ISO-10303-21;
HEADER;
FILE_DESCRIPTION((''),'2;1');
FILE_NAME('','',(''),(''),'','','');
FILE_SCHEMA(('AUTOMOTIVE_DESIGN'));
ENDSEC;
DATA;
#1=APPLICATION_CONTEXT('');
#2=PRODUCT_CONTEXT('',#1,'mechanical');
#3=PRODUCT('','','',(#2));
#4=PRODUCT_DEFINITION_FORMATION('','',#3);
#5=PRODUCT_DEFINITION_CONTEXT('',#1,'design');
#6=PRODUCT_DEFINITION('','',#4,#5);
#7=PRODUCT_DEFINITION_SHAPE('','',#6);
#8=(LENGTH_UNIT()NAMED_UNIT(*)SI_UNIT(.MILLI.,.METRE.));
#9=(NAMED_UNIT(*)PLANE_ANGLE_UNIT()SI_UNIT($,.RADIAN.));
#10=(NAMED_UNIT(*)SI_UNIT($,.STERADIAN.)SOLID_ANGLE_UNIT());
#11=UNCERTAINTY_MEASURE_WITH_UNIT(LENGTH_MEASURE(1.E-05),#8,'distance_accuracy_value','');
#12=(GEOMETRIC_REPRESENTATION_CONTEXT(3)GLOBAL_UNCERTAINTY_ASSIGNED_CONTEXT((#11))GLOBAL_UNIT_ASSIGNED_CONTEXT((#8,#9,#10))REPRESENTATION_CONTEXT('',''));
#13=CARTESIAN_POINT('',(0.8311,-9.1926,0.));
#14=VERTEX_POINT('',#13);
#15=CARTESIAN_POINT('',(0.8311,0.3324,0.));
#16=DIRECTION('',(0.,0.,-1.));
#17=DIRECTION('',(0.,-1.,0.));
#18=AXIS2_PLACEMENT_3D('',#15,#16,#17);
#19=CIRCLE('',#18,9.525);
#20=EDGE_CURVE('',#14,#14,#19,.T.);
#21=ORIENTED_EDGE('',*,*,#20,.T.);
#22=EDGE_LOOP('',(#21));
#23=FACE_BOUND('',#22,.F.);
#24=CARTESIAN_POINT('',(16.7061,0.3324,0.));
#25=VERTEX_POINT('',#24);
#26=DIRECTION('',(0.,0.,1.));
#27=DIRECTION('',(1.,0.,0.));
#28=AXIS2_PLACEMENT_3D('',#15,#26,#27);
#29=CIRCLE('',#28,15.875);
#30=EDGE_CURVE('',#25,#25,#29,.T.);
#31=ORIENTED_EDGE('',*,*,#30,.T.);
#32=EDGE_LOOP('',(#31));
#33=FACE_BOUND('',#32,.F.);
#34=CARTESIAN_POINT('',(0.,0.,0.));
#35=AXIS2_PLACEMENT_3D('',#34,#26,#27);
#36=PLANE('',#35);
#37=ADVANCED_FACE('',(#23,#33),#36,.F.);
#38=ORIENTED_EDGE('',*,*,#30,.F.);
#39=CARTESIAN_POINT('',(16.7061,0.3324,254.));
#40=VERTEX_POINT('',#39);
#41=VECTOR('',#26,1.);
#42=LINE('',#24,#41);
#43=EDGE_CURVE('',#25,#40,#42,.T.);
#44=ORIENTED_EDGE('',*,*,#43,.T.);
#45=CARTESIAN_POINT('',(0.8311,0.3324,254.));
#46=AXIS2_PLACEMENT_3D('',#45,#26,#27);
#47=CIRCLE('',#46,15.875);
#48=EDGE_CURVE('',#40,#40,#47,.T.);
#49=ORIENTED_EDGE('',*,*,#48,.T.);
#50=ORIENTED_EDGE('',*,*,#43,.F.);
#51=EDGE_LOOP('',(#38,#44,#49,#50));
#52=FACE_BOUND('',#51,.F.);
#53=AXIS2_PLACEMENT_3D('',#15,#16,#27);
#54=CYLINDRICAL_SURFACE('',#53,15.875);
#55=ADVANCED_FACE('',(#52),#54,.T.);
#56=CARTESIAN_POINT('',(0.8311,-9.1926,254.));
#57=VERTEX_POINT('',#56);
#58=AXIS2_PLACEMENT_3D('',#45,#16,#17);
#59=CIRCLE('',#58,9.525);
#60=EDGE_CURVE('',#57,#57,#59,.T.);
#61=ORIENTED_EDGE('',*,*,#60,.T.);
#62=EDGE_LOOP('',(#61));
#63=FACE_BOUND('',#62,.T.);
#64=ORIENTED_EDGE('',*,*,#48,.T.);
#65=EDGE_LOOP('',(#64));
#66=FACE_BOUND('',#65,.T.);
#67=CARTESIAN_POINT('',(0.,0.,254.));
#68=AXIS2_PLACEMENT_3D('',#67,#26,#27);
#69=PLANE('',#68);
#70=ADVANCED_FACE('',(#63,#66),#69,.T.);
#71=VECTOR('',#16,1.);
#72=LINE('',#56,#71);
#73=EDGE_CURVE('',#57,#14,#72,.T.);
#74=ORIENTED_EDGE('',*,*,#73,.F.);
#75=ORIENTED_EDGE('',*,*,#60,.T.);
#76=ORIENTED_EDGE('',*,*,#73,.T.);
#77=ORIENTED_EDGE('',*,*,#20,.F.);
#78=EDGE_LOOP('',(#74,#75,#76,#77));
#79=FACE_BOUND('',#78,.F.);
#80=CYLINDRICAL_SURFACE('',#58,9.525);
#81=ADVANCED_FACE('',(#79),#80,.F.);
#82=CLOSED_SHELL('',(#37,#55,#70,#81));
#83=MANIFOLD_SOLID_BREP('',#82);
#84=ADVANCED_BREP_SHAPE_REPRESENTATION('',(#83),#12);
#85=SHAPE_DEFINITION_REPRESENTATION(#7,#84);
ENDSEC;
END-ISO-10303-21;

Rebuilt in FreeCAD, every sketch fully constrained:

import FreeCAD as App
import Part
import Sketcher
Q = App.Units.Quantity

doc = App.newDocument("Part")
body = doc.addObject("PartDesign::Body", "Body")

sketch1 = doc.addObject("Sketcher::SketchObject", "Sketch")
body.addObject(sketch1)
sketch1.AttachmentSupport = (doc.XY_Plane, [""])
sketch1.MapMode = "FlatFace"
sketch1.addGeometry(Part.Circle(App.Vector(1, 0, 0), App.Vector(0, 0, 1), 16), False)
sketch1.addConstraint(Sketcher.Constraint("Diameter", 0, Q("1.25 in")))
sketch1.addConstraint(Sketcher.Constraint("DistanceX", -1, 1, 0, 3, 0.831))
sketch1.addConstraint(Sketcher.Constraint("DistanceY", -1, 1, 0, 3, 0.3324))
pad1 = doc.addObject("PartDesign::Pad", "Pad")
body.addObject(pad1)
pad1.Profile = sketch1
pad1.Length = Q("10 in")

sketch2 = doc.addObject("Sketcher::SketchObject", "Sketch001")
body.addObject(sketch2)
sketch2.AttachmentSupport = (doc.XY_Plane, [""])
sketch2.MapMode = "FlatFace"
sketch2.AttachmentOffset = App.Placement(App.Vector(0, 0, 10 * 25.4), App.Rotation())
sketch2.addGeometry(Part.Circle(App.Vector(1, 0, 0), App.Vector(0, 0, 1), 10), False)
sketch2.addConstraint(Sketcher.Constraint("Diameter", 0, Q("0.75 in")))
sketch2.addConstraint(Sketcher.Constraint("DistanceX", -1, 1, 0, 3, 0.831))
sketch2.addConstraint(Sketcher.Constraint("DistanceY", -1, 1, 0, 3, 0.3324))
doc.recompute()
hole = doc.addObject("PartDesign::Hole", "Hole")
body.addObject(hole)
hole.Profile = sketch2
hole.ThreadType = "None"
hole.Diameter = Q("0.75 in")
hole.DepthType = "ThroughAll"

doc.recompute()
